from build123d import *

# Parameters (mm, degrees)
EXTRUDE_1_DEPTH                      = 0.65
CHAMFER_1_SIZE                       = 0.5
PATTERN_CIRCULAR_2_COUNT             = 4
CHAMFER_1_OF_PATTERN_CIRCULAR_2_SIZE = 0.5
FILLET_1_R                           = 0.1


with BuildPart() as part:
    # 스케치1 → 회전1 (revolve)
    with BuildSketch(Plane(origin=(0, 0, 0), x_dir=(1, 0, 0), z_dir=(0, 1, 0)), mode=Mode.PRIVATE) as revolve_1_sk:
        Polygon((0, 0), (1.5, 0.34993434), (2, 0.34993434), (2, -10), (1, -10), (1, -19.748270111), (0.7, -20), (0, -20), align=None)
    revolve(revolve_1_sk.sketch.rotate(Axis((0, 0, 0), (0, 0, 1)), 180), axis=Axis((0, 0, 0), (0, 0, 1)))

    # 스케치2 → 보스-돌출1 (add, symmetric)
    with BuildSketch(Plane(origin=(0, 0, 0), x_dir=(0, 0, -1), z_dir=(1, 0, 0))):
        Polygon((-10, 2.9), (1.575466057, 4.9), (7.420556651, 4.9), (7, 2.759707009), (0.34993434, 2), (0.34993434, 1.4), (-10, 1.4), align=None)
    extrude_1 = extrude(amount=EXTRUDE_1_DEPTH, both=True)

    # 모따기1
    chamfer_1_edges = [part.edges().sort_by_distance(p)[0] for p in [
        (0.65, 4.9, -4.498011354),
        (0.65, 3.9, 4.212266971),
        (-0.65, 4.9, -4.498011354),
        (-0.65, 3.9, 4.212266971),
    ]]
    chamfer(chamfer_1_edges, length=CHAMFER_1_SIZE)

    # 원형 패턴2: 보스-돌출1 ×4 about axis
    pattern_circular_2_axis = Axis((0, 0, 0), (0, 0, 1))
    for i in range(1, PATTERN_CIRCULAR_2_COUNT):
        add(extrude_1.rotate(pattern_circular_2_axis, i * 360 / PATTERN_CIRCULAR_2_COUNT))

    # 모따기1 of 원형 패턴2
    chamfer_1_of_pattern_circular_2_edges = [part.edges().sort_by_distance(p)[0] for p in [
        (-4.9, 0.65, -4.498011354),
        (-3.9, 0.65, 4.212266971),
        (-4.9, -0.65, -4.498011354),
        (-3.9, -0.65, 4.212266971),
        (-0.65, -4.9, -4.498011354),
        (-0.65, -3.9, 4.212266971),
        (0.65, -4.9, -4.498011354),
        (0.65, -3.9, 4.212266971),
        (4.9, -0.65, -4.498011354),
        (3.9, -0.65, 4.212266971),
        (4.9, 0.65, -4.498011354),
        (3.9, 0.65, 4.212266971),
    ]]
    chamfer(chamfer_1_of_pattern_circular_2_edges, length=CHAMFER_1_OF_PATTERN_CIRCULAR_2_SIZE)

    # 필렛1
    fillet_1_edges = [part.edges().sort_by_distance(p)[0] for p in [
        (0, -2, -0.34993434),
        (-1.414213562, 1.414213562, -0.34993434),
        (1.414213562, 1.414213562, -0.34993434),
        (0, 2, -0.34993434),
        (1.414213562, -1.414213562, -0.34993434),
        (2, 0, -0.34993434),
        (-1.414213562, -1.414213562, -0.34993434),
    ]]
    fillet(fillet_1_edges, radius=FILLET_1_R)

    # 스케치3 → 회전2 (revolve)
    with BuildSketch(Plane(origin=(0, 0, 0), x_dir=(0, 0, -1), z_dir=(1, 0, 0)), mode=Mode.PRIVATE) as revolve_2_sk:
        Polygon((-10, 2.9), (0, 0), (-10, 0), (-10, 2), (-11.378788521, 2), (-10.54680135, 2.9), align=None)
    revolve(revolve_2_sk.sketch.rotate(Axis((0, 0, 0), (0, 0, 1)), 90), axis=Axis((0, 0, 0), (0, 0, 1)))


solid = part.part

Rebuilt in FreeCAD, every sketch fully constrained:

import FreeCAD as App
import Part
import Sketcher

V = App.Vector
Q = App.Units.Quantity


def edges_at(feature, points):
    """Names of the edges that pass closest to the given points."""
    edges = feature.Shape.Edges
    near = lambda p: min(range(len(edges)), key=lambda i: edges[i].distToShape(Part.Vertex(*p))[0])
    return sorted({f"Edge{near(p) + 1}" for p in points})

doc = App.newDocument("Part")
body = doc.addObject("PartDesign::Body", "Body")

# Sketch on XZ plane
sketch1 = doc.addObject("Sketcher::SketchObject", "Sketch")
body.addObject(sketch1)
sketch1.AttachmentSupport = (doc.XZ_Plane, [""])
sketch1.MapMode = "FlatFace"
sketch1.addGeometry(Part.LineSegment(V(1.5, -0.35, 0), V(0, 0, 0)), False)
sketch1.addGeometry(Part.LineSegment(V(0, 0, 0), V(0, 20, 0)), False)
sketch1.addGeometry(Part.LineSegment(V(0, 20, 0), V(0.7, 20, 0)), False)
sketch1.addGeometry(Part.LineSegment(V(0.7, 20, 0), V(1, 19.75, 0)), False)
sketch1.addGeometry(Part.LineSegment(V(1, 19.75, 0), V(1, 10, 0)), False)
sketch1.addGeometry(Part.LineSegment(V(1, 10, 0), V(2, 10, 0)), False)
sketch1.addGeometry(Part.LineSegment(V(2, 10, 0), V(2, -0.35, 0)), False)
sketch1.addGeometry(Part.LineSegment(V(2, -0.35, 0), V(1.5, -0.35, 0)), False)
sketch1.addConstraint(Sketcher.Constraint("Coincident", 0, 2, 1, 1))
sketch1.addConstraint(Sketcher.Constraint("Coincident", 1, 2, 2, 1))
sketch1.addConstraint(Sketcher.Constraint("Coincident", 2, 2, 3, 1))
sketch1.addConstraint(Sketcher.Constraint("Coincident", 3, 2, 4, 1))
sketch1.addConstraint(Sketcher.Constraint("Coincident", 4, 2, 5, 1))
sketch1.addConstraint(Sketcher.Constraint("Coincident", 5, 2, 6, 1))
sketch1.addConstraint(Sketcher.Constraint("Coincident", 6, 2, 7, 1))
sketch1.addConstraint(Sketcher.Constraint("Coincident", 7, 2, 0, 1))
sketch1.addConstraint(Sketcher.Constraint("Vertical", 1))
sketch1.addConstraint(Sketcher.Constraint("Horizontal", 2))
sketch1.addConstraint(Sketcher.Constraint("Vertical", 4))
sketch1.addConstraint(Sketcher.Constraint("Horizontal", 5))
sketch1.addConstraint(Sketcher.Constraint("Vertical", 6))
sketch1.addConstraint(Sketcher.Constraint("Horizontal", 7))
sketch1.addConstraint(Sketcher.Constraint("Coincident", 0, 2, -1, 1))
sketch1.addConstraint(Sketcher.Constraint("DistanceX", 5, 1, 5, 2, 1.0))
sketch1.addConstraint(Sketcher.Constraint("DistanceY", 1, 1, 1, 2, 20.0))
sketch1.addConstraint(Sketcher.Constraint("Angle", 3, Q("-40 deg")))
sketch1.addConstraint(Sketcher.Constraint("DistanceX", 2, 1, 2, 2, 0.7))
sketch1.addConstraint(Sketcher.Constraint("DistanceX", 7, 2, 7, 1, 0.5))
sketch1.addConstraint(Sketcher.Constraint("DistanceX", -1, 1, 3, 2, 1.0))
sketch1.addConstraint(Sketcher.Constraint("DistanceY", -1, 1, 4, 2, 10.0))
sketch1.addConstraint(Sketcher.Constraint("DistanceY", 6, 2, 6, 1, 10.349934))
revolution = doc.addObject("PartDesign::Revolution", "Revolution")
body.addObject(revolution)
revolution.Profile = sketch1
revolution.ReferenceAxis = (sketch1, ["V_Axis"])
revolution.Angle = 360

# Sketch on YZ plane
sketch2 = doc.addObject("Sketcher::SketchObject", "Sketch001")
body.addObject(sketch2)
sketch2.AttachmentSupport = (doc.YZ_Plane, [""])
sketch2.MapMode = "FlatFace"
sketch2.addGeometry(Part.LineSegment(V(4.9, -1.6, 0), V(2.9, 10, 0)), False)
sketch2.addGeometry(Part.LineSegment(V(2.9, 10, 0), V(1.4, 10, 0)), False)
sketch2.addGeometry(Part.LineSegment(V(1.4, 10, 0), V(1.4, -0.3, 0)), False)
sketch2.addGeometry(Part.LineSegment(V(1.4, -0.3, 0), V(2, -0.3, 0)), False)
sketch2.addGeometry(Part.LineSegment(V(2, -0.3, 0), V(2.8, -7, 0)), False)
sketch2.addGeometry(Part.LineSegment(V(2.8, -7, 0), V(4.9, -7.4, 0)), False)
sketch2.addGeometry(Part.LineSegment(V(4.9, -7.4, 0), V(4.9, -1.6, 0)), False)
sketch2.addConstraint(Sketcher.Constraint("Coincident", 0, 2, 1, 1))
sketch2.addConstraint(Sketcher.Constraint("Coincident", 1, 2, 2, 1))
sketch2.addConstraint(Sketcher.Constraint("Coincident", 2, 2, 3, 1))
sketch2.addConstraint(Sketcher.Constraint("Coincident", 3, 2, 4, 1))
sketch2.addConstraint(Sketcher.Constraint("Coincident", 4, 2, 5, 1))
sketch2.addConstraint(Sketcher.Constraint("Coincident", 5, 2, 6, 1))
sketch2.addConstraint(Sketcher.Constraint("Coincident", 6, 2, 0, 1))
sketch2.addConstraint(Sketcher.Constraint("Horizontal", 1))
sketch2.addConstraint(Sketcher.Constraint("Vertical", 2))
sketch2.addConstraint(Sketcher.Constraint("Horizontal", 3))
sketch2.addConstraint(Sketcher.Constraint("Vertical", 6))
sketch2.addConstraint(Sketcher.Constraint("DistanceX", 1, 2, 1, 1, 1.5))
sketch2.addConstraint(Sketcher.Constraint("DistanceX", 3, 1, 3, 2, 0.6))
sketch2.addConstraint(Sketcher.Constraint("DistanceY", -1, 1, 0, 2, 10.0))
sketch2.addConstraint(Sketcher.Constraint("DistanceX", -1, 1, 3, 2, 2.0))
sketch2.addConstraint(Sketcher.Constraint("DistanceY", 4, 2, -1, 1, 7.0))
sketch2.addConstraint(Sketcher.Constraint("DistanceX", 0, 2, 5, 2, 2.0))
sketch2.addConstraint(Sketcher.Constraint("DistanceY", 6, 1, 6, 2, 5.845091))
sketch2.addConstraint(Sketcher.Constraint("Distance", 4, 6.69332))
sketch2.addConstraint(Sketcher.Constraint("Distance", 5, 2.18122))
sketch2.addConstraint(Sketcher.Constraint("DistanceY", 2, 2, 2, 1, 10.349934))
pad1 = doc.addObject("PartDesign::Pad", "Pad")
body.addObject(pad1)
pad1.Profile = sketch2
pad1.Length = 1.3
pad1.Midplane = True
doc.recompute()

chamfer = doc.addObject("PartDesign::Chamfer", "Chamfer")
body.addObject(chamfer)
chamfer.Base = (pad1, edges_at(pad1, [
    (0.65, 4.9, -4.498),
    (0.65, 3.9, 4.212),
    (-0.65, 4.9, -4.498),
    (-0.65, 3.9, 4.212),
]))
chamfer.Size = 0.5
doc.recompute()

polarpattern = doc.addObject("PartDesign::PolarPattern", "PolarPattern")
body.addObject(polarpattern)
polarpattern.Originals = [pad1]
polarpattern.Axis = (doc.Z_Axis, [""])
polarpattern.Angle = 360
polarpattern.Occurrences = 4
body.Tip = polarpattern
doc.recompute()

chamfer2 = doc.addObject("PartDesign::Chamfer", "Chamfer001")
body.addObject(chamfer2)
chamfer2.Base = (polarpattern, edges_at(polarpattern, [
    (-4.9, 0.65, -4.498),
    (-3.9, 0.65, 4.212),
    (-4.9, -0.65, -4.498),
    (-3.9, -0.65, 4.212),
    (-0.65, -4.9, -4.498),
    (-0.65, -3.9, 4.212),
    (0.65, -4.9, -4.498),
    (0.65, -3.9, 4.212),
    (4.9, -0.65, -4.498),
    (3.9, -0.65, 4.212),
    (4.9, 0.65, -4.498),
    (3.9, 0.65, 4.212),
]))
chamfer2.Size = 0.5
doc.recompute()

fillet = doc.addObject("PartDesign::Fillet", "Fillet")
body.addObject(fillet)
fillet.Base = (chamfer2, edges_at(chamfer2, [
    (0, -2, -0.35),
    (-1.414, 1.414, -0.35),
    (1.414, 1.414, -0.35),
    (0, 2, -0.35),
    (1.414, -1.414, -0.35),
    (2, 0, -0.35),
    (-1.414, -1.414, -0.35),
]))
fillet.Radius = 0.1

# Sketch on YZ plane
sketch3 = doc.addObject("Sketcher::SketchObject", "Sketch002")
body.addObject(sketch3)
sketch3.AttachmentSupport = (doc.YZ_Plane, [""])
sketch3.MapMode = "FlatFace"
sketch3.addGeometry(Part.LineSegment(V(0, 0, 0), V(2.9, 10, 0)), False)
sketch3.addGeometry(Part.LineSegment(V(2.9, 10, 0), V(2.9, 10.5, 0)), False)
sketch3.addGeometry(Part.LineSegment(V(2.9, 10.5, 0), V(2, 11.4, 0)), False)
sketch3.addGeometry(Part.LineSegment(V(2, 11.4, 0), V(2, 10, 0)), False)
sketch3.addGeometry(Part.LineSegment(V(2, 10, 0), V(0, 10, 0)), False)
sketch3.addGeometry(Part.LineSegment(V(0, 10, 0), V(0, 0, 0)), False)
sketch3.addConstraint(Sketcher.Constraint("Coincident", 0, 2, 1, 1))
sketch3.addConstraint(Sketcher.Constraint("Coincident", 1, 2, 2, 1))
sketch3.addConstraint(Sketcher.Constraint("Coincident", 2, 2, 3, 1))
sketch3.addConstraint(Sketcher.Constraint("Coincident", 3, 2, 4, 1))
sketch3.addConstraint(Sketcher.Constraint("Coincident", 4, 2, 5, 1))
sketch3.addConstraint(Sketcher.Constraint("Coincident", 5, 2, 0, 1))
sketch3.addConstraint(Sketcher.Constraint("Vertical", 1))
sketch3.addConstraint(Sketcher.Constraint("Vertical", 3))
sketch3.addConstraint(Sketcher.Constraint("Horizontal", 4))
sketch3.addConstraint(Sketcher.Constraint("Vertical", 5))
sketch3.addConstraint(Sketcher.Constraint("Coincident", 5, 2, -1, 1))
sketch3.addConstraint(Sketcher.Constraint("Horizontal", 0, 2, 3, 2))
sketch3.addConstraint(Sketcher.Constraint("DistanceX", 4, 2, 4, 1, 2.0))
sketch3.addConstraint(Sketcher.Constraint("DistanceY", 5, 2, 5, 1, 10.0))
sketch3.addConstraint(Sketcher.Constraint("DistanceX", -1, 1, 0, 2, 2.9))
sketch3.addConstraint(Sketcher.Constraint("DistanceY", 1, 1, 1, 2, 0.546801))
sketch3.addConstraint(Sketcher.Constraint("DistanceY", 3, 2, 3, 1, 1.378789))
revolution2 = doc.addObject("PartDesign::Revolution", "Revolution001")
body.addObject(revolution2)
revolution2.Profile = sketch3
revolution2.ReferenceAxis = (sketch3, ["V_Axis"])
revolution2.Angle = 360

doc.recompute()
